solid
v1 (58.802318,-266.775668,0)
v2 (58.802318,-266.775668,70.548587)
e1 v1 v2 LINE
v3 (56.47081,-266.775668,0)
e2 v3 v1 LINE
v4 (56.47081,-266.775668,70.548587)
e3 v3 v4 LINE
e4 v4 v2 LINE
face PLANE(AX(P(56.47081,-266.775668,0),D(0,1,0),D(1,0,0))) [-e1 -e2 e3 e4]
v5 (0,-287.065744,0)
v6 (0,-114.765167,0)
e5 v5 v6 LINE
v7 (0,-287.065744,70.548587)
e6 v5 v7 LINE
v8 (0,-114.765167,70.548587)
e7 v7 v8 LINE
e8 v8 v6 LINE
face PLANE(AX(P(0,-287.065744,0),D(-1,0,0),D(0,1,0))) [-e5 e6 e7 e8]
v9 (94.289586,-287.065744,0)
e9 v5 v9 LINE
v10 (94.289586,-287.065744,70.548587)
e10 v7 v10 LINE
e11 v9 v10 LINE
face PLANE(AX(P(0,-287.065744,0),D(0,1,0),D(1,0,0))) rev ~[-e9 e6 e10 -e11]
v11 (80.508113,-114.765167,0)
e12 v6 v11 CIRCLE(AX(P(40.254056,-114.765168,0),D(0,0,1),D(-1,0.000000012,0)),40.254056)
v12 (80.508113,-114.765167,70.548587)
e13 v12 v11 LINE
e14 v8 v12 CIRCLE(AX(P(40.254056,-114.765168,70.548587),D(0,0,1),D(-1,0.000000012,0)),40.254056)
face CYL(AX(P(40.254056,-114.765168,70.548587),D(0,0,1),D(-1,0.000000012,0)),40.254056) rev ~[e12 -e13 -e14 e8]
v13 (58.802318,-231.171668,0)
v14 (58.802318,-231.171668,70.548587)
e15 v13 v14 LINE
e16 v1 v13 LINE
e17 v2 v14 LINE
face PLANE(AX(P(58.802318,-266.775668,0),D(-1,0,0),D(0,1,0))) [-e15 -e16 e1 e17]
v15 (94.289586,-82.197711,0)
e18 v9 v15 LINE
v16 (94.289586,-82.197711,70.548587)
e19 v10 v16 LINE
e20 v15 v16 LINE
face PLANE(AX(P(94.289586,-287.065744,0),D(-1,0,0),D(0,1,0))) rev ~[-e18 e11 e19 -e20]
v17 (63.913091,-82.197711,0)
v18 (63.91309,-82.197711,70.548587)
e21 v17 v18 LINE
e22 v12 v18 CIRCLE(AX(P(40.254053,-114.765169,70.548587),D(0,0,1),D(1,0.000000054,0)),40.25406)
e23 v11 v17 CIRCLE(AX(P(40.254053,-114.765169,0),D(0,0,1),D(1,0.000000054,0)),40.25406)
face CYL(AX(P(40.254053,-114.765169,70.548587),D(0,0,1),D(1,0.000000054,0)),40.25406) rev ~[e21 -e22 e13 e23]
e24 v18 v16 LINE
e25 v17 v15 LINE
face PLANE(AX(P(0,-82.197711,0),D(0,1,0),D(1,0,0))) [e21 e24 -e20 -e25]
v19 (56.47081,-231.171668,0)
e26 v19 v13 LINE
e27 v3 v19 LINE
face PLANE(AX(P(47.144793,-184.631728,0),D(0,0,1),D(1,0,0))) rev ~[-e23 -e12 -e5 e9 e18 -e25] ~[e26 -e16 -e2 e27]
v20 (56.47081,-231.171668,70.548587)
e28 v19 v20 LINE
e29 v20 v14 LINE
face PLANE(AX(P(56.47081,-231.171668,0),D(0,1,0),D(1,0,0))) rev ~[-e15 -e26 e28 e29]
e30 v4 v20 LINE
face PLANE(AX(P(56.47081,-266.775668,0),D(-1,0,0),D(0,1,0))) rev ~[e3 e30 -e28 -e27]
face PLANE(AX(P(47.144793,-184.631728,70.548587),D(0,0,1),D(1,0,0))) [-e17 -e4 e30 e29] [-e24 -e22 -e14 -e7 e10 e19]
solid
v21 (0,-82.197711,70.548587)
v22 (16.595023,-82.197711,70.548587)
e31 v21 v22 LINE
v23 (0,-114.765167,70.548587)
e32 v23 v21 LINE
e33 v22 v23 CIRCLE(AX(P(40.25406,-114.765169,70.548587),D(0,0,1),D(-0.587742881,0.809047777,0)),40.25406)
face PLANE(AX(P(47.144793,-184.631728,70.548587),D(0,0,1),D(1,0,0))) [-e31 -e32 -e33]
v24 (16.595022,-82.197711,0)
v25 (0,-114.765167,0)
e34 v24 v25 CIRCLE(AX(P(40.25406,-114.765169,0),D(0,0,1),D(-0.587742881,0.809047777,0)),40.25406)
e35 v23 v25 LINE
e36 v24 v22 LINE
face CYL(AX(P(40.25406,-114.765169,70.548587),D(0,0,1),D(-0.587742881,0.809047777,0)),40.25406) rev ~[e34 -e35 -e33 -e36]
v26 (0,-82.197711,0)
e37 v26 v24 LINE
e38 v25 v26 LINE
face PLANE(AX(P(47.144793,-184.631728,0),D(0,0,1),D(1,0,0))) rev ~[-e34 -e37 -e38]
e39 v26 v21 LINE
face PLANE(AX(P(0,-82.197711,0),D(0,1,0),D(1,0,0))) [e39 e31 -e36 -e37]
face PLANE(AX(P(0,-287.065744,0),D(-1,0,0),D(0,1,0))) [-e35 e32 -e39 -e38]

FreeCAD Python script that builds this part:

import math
import FreeCAD as App
import Part
import Sketcher
Q = App.Units.Quantity


def add_polygon(sketch, points):
    """Adds a closed chain of lines whose ends are joined by coincident constraints."""
    first, n = sketch.GeometryCount, len(points)
    for a, b in zip(points, points[1:] + points[:1]):
        sketch.addGeometry(Part.LineSegment(App.Vector(*a, 0), App.Vector(*b, 0)), False)
    for i in range(n):
        sketch.addConstraint(Sketcher.Constraint("Coincident", first + i, 2, first + (i + 1) % n, 1))

doc = App.newDocument("Part")
body = doc.addObject("PartDesign::Body", "Body")
body.AllowCompound = True

sketch1 = body.newObject("Sketcher::SketchObject", "Sketch")
sketch1.AttachmentSupport = (doc.getObject("XY_Plane"), [""])
sketch1.MapMode = "FlatFace"
add_polygon(sketch1, [(0, -82.2), (0, -287.1), (94.3, -287.1), (94.3, -82.2)])
add_polygon(sketch1, [(58.8, -266.8), (56.5, -266.8), (56.5, -231.2), (58.8, -231.2)])
sketch1.addConstraint([
    Sketcher.Constraint("Vertical", 0),
    Sketcher.Constraint("Horizontal", 1),
    Sketcher.Constraint("Vertical", 2),
    Sketcher.Constraint("Horizontal", 3),
    Sketcher.Constraint("Horizontal", 4),
    Sketcher.Constraint("Vertical", 5),
    Sketcher.Constraint("Horizontal", 6),
    Sketcher.Constraint("Vertical", 7),
    Sketcher.Constraint("PointOnObject", 0, 2, -2),
    Sketcher.Constraint("DistanceY", 5, 1, 5, 2, Q("35.604 mm")),
    Sketcher.Constraint("DistanceX", 1, 1, 1, 2, Q("94.289586 mm")),
    Sketcher.Constraint("DistanceX", 4, 2, 4, 1, Q("2.331507 mm")),
    Sketcher.Constraint("DistanceY", 0, 2, 0, 1, Q("204.868033 mm")),
    Sketcher.Constraint("DistanceY", 2, 2, -1, 1, Q("82.197711 mm")),
    Sketcher.Constraint("DistanceX", -1, 1, 4, 2, Q("56.47081 mm")),
    Sketcher.Constraint("DistanceY", 4, 2, -1, 1, Q("266.775668 mm")),
])
pad1 = body.newObject("PartDesign::Pad", "Pad")
pad1.Profile = sketch1
pad1.Length = 70.548587

sketch2 = body.newObject("Sketcher::SketchObject", "Sketch001")
sketch2.AttachmentSupport = (doc.getObject("XY_Plane"), [""])
sketch2.MapMode = "FlatFace"
sketch2.AttachmentOffset = App.Placement(App.Vector(0, 0, 70.548587), App.Rotation())
sketch2.addGeometry([
    Part.ArcOfCircle(Part.Circle(App.Vector(40, -115, 0), App.Vector(0, 0, 1), 40), math.radians(180), math.radians(360)),
    Part.ArcOfCircle(Part.Circle(App.Vector(40, -115, 0), App.Vector(0, 0, 1), 40), math.radians(0), math.radians(54)),
    Part.LineSegment(App.Vector(64, -82, 0), App.Vector(17, -82, 0)),
    Part.ArcOfCircle(Part.Circle(App.Vector(40, -115, 0), App.Vector(0, 0, 1), 40), math.radians(126), math.radians(180)),
], False)
sketch2.addConstraint([
    Sketcher.Constraint("Tangent", 0, 2, 1, 1),
    Sketcher.Constraint("Coincident", 1, 2, 2, 1),
    Sketcher.Constraint("Coincident", 2, 2, 3, 1),
    Sketcher.Constraint("Tangent", 3, 2, 0, 1),
    Sketcher.Constraint("Horizontal", 2),
    Sketcher.Constraint("Equal", 1, 3),
    Sketcher.Constraint("PointOnObject", 3, 2, -2),
    Sketcher.Constraint("Horizontal", 0, 2, 3, 2),
    Sketcher.Constraint("Radius", 1, Q("40.25406 mm")),
    Sketcher.Constraint("Radius", 0, Q("40.254056 mm")),
    Sketcher.Constraint("DistanceX", 2, 2, 2, 1, Q("47.318067 mm")),
    Sketcher.Constraint("DistanceY", 1, 3, -1, 1, Q("114.765169 mm")),
    Sketcher.Constraint("DistanceY", 0, 2, -1, 1, Q("114.765167 mm")),
])
pocket1 = body.newObject("PartDesign::Pocket", "Pocket")
pocket1.Profile = sketch2
pocket1.Length = 90.976335

doc.recompute()
